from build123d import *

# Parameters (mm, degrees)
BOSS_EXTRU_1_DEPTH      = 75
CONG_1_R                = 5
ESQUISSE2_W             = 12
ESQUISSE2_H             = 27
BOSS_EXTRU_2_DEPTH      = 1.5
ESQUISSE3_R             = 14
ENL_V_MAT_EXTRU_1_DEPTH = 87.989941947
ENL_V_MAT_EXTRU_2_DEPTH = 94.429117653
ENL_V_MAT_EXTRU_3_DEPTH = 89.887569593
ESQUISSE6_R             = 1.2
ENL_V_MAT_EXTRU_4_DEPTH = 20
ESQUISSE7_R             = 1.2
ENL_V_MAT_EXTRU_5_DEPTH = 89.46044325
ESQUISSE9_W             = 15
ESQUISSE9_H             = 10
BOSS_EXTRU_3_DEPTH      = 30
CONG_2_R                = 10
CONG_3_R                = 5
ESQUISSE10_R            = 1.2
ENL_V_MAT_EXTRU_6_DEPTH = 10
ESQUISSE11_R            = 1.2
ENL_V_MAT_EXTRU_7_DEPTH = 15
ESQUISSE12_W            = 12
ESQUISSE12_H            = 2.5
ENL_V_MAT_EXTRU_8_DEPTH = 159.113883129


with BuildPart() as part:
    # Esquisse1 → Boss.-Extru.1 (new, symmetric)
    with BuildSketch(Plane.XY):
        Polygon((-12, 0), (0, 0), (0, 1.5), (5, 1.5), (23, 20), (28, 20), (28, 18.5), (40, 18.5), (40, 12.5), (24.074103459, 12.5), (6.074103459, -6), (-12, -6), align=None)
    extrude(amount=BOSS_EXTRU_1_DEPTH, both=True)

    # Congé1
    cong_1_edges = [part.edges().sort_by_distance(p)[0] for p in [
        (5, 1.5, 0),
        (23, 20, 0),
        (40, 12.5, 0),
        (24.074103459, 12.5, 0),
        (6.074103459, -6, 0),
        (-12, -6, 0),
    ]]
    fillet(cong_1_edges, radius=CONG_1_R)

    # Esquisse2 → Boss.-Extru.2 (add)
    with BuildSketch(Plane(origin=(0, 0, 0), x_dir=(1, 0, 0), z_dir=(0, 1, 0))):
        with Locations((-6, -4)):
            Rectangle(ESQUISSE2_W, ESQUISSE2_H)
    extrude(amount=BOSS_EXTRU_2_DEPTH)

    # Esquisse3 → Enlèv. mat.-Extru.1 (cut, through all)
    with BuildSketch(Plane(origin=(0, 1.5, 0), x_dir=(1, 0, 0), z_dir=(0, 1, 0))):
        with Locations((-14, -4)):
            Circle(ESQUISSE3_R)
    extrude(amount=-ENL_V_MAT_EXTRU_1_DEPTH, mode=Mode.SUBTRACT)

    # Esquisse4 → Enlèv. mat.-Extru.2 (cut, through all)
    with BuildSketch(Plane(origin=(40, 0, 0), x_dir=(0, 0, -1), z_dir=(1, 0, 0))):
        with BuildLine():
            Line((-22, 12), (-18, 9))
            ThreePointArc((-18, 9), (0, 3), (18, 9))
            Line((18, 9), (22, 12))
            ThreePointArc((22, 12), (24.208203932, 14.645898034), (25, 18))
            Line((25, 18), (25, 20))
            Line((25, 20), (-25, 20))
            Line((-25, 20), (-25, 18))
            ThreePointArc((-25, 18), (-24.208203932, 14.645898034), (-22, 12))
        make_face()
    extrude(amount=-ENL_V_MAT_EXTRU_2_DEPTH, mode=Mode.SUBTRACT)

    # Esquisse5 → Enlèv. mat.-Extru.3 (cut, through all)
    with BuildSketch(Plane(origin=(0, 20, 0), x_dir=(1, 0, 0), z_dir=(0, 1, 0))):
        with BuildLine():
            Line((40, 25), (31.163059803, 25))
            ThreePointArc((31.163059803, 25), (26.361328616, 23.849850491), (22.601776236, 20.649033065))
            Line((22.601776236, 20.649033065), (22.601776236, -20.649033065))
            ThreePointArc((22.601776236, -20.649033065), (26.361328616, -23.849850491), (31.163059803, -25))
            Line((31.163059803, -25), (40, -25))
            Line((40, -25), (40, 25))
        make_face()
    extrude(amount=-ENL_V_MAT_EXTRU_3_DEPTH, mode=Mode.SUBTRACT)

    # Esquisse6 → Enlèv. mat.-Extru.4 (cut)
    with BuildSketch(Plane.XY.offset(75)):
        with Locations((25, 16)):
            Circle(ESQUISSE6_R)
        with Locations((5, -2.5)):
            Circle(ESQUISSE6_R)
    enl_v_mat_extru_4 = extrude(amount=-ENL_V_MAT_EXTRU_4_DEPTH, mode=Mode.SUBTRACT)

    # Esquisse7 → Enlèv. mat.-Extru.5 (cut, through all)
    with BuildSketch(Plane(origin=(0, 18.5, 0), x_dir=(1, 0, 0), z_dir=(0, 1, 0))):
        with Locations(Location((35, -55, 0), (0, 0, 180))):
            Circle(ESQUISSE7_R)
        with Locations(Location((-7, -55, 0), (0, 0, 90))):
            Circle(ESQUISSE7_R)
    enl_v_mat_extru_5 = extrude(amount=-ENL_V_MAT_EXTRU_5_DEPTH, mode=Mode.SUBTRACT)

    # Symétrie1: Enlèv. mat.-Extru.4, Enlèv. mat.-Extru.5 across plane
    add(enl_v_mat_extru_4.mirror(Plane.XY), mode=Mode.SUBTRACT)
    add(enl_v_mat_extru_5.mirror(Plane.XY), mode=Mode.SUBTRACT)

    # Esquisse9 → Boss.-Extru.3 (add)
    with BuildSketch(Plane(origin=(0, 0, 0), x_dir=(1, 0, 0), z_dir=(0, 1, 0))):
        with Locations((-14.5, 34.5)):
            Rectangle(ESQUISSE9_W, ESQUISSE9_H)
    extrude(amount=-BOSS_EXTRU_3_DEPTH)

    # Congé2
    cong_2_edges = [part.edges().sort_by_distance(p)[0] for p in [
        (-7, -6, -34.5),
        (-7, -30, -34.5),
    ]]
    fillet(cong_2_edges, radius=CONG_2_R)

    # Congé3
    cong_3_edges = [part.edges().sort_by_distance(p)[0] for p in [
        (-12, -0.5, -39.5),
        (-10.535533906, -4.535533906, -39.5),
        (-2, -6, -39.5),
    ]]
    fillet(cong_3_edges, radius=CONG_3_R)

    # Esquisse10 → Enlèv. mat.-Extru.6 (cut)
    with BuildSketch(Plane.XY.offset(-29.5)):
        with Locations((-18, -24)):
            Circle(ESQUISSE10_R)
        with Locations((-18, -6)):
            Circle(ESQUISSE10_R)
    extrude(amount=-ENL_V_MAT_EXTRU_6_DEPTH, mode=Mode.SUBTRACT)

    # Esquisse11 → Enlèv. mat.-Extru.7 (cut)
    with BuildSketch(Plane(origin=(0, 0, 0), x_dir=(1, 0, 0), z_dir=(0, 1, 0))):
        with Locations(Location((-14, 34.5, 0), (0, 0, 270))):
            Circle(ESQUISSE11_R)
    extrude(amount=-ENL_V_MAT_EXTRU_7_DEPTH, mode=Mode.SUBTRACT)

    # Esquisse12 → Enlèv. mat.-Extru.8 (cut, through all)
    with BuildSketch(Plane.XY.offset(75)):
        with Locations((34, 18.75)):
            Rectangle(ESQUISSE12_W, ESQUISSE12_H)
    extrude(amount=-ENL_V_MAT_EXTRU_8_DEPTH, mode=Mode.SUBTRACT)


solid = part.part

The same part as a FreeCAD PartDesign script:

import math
import FreeCAD as App
import Part
import Sketcher
from FreeCAD import Vector


def edges_at(feature, points):
    """Names of the edges that pass closest to the given points."""
    edges = feature.Shape.Edges
    near = lambda p: min(range(len(edges)), key=lambda i: edges[i].distToShape(Part.Vertex(*p))[0])
    return sorted({f"Edge{near(p) + 1}" for p in points})

doc = App.newDocument("Part")
body = doc.addObject("PartDesign::Body", "Body")

# Sketch on XY plane
sketch1 = doc.addObject("Sketcher::SketchObject", "Sketch")
body.addObject(sketch1)
sketch1.AttachmentSupport = (doc.XY_Plane, [""])
sketch1.MapMode = "FlatFace"
sketch1.addGeometry(Part.LineSegment(Vector(0, 0, 0), Vector(-12, 0, 0)), False)
sketch1.addGeometry(Part.LineSegment(Vector(-12, 0, 0), Vector(-12, -6, 0)), False)
sketch1.addGeometry(Part.LineSegment(Vector(-12, -6, 0), Vector(6.1, -6, 0)), False)
sketch1.addGeometry(Part.LineSegment(Vector(6.1, -6, 0), Vector(24.1, 12.5, 0)), False)
sketch1.addGeometry(Part.LineSegment(Vector(24.1, 12.5, 0), Vector(40, 12.5, 0)), False)
sketch1.addGeometry(Part.LineSegment(Vector(40, 12.5, 0), Vector(40, 18.5, 0)), False)
sketch1.addGeometry(Part.LineSegment(Vector(40, 18.5, 0), Vector(28, 18.5, 0)), False)
sketch1.addGeometry(Part.LineSegment(Vector(28, 18.5, 0), Vector(28, 20, 0)), False)
sketch1.addGeometry(Part.LineSegment(Vector(28, 20, 0), Vector(23, 20, 0)), False)
sketch1.addGeometry(Part.LineSegment(Vector(23, 20, 0), Vector(5, 1.5, 0)), False)
sketch1.addGeometry(Part.LineSegment(Vector(5, 1.5, 0), Vector(0, 1.5, 0)), False)
sketch1.addGeometry(Part.LineSegment(Vector(0, 1.5, 0), Vector(0, 0, 0)), False)
sketch1.addConstraint(Sketcher.Constraint("Coincident", 0, 2, 1, 1))
sketch1.addConstraint(Sketcher.Constraint("Coincident", 1, 2, 2, 1))
sketch1.addConstraint(Sketcher.Constraint("Coincident", 2, 2, 3, 1))
sketch1.addConstraint(Sketcher.Constraint("Coincident", 3, 2, 4, 1))
sketch1.addConstraint(Sketcher.Constraint("Coincident", 4, 2, 5, 1))
sketch1.addConstraint(Sketcher.Constraint("Coincident", 5, 2, 6, 1))
sketch1.addConstraint(Sketcher.Constraint("Coincident", 6, 2, 7, 1))
sketch1.addConstraint(Sketcher.Constraint("Coincident", 7, 2, 8, 1))
sketch1.addConstraint(Sketcher.Constraint("Coincident", 8, 2, 9, 1))
sketch1.addConstraint(Sketcher.Constraint("Coincident", 9, 2, 10, 1))
sketch1.addConstraint(Sketcher.Constraint("Coincident", 10, 2, 11, 1))
sketch1.addConstraint(Sketcher.Constraint("Coincident", 11, 2, 0, 1))
sketch1.addConstraint(Sketcher.Constraint("Horizontal", 0))
sketch1.addConstraint(Sketcher.Constraint("Vertical", 1))
sketch1.addConstraint(Sketcher.Constraint("Horizontal", 2))
sketch1.addConstraint(Sketcher.Constraint("Horizontal", 4))
sketch1.addConstraint(Sketcher.Constraint("Vertical", 5))
sketch1.addConstraint(Sketcher.Constraint("Horizontal", 6))
sketch1.addConstraint(Sketcher.Constraint("Vertical", 7))
sketch1.addConstraint(Sketcher.Constraint("Horizontal", 8))
sketch1.addConstraint(Sketcher.Constraint("Horizontal", 10))
sketch1.addConstraint(Sketcher.Constraint("Vertical", 11))
sketch1.addConstraint(Sketcher.Constraint("Coincident", 11, 2, -1, 1))
sketch1.addConstraint(Sketcher.Constraint("Parallel", 3, 9))
sketch1.addConstraint(Sketcher.Constraint("Equal", 0, 6))
sketch1.addConstraint(Sketcher.Constraint("Equal", 8, 10))
sketch1.addConstraint(Sketcher.Constraint("Equal", 1, 5))
sketch1.addConstraint(Sketcher.Constraint("Equal", 7, 11))
sketch1.addConstraint(Sketcher.Constraint("DistanceX", 0, 2, 0, 1, 12.0))
sketch1.addConstraint(Sketcher.Constraint("DistanceX", 8, 2, 8, 1, 5.0))
sketch1.addConstraint(Sketcher.Constraint("DistanceY", 1, 2, 1, 1, 6.0))
sketch1.addConstraint(Sketcher.Constraint("DistanceY", 7, 1, 7, 2, 1.5))
sketch1.addConstraint(Sketcher.Constraint("DistanceX", -1, 1, 4, 2, 40.0))
sketch1.addConstraint(Sketcher.Constraint("DistanceY", -1, 1, 7, 2, 20.0))
sketch1.addConstraint(Sketcher.Constraint("DistanceX", 2, 1, 2, 2, 18.074103))
pad1 = doc.addObject("PartDesign::Pad", "Pad")
body.addObject(pad1)
pad1.Profile = sketch1
pad1.Length = 150
pad1.Midplane = True
doc.recompute()

fillet = doc.addObject("PartDesign::Fillet", "Fillet")
body.addObject(fillet)
fillet.Base = (pad1, edges_at(pad1, [
    (5, 1.5, 0),
    (23, 20, 0),
    (40, 12.5, 0),
    (24.074, 12.5, 0),
    (6.074, -6, 0),
    (-12, -6, 0),
]))
fillet.Radius = 5

# Sketch on XZ plane
sketch2 = doc.addObject("Sketcher::SketchObject", "Sketch001")
body.addObject(sketch2)
sketch2.AttachmentSupport = (doc.XZ_Plane, [""])
sketch2.MapMode = "FlatFace"
sketch2.addGeometry(Part.LineSegment(Vector(-12, -10, 0), Vector(-12, 18, 0)), False)
sketch2.addGeometry(Part.LineSegment(Vector(-12, 18, 0), Vector(0, 18, 0)), False)
sketch2.addGeometry(Part.LineSegment(Vector(0, 18, 0), Vector(0, -10, 0)), False)
sketch2.addGeometry(Part.LineSegment(Vector(0, -10, 0), Vector(-12, -10, 0)), False)
sketch2.addConstraint(Sketcher.Constraint("Coincident", 0, 2, 1, 1))
sketch2.addConstraint(Sketcher.Constraint("Coincident", 1, 2, 2, 1))
sketch2.addConstraint(Sketcher.Constraint("Coincident", 2, 2, 3, 1))
sketch2.addConstraint(Sketcher.Constraint("Coincident", 3, 2, 0, 1))
sketch2.addConstraint(Sketcher.Constraint("Vertical", 0))
sketch2.addConstraint(Sketcher.Constraint("Horizontal", 1))
sketch2.addConstraint(Sketcher.Constraint("Vertical", 2))
sketch2.addConstraint(Sketcher.Constraint("Horizontal", 3))
sketch2.addConstraint(Sketcher.Constraint("PointOnObject", 1, 2, -2))
sketch2.addConstraint(Sketcher.Constraint("DistanceX", 1, 1, 1, 2, 12.0))
sketch2.addConstraint(Sketcher.Constraint("DistanceY", 0, 1, 0, 2, 27.0))
sketch2.addConstraint(Sketcher.Constraint("DistanceY", -1, 1, 0, 2, 17.5))
pad2 = doc.addObject("PartDesign::Pad", "Pad001")
body.addObject(pad2)
pad2.Profile = sketch2
pad2.Length = 1.5
pad2.Reversed = True

# Sketch on XZ plane
sketch3 = doc.addObject("Sketcher::SketchObject", "Sketch002")
body.addObject(sketch3)
sketch3.AttachmentSupport = (doc.XZ_Plane, [""])
sketch3.MapMode = "FlatFace"
sketch3.AttachmentOffset = App.Placement(Vector(0, 0, -1.5), App.Rotation())
sketch3.addGeometry(Part.Circle(Vector(-14, 4, 0), Vector(0, 0, 1), 14), False)
sketch3.addConstraint(Sketcher.Constraint("Diameter", 0, 28.0))
sketch3.addConstraint(Sketcher.Constraint("DistanceX", 0, 3, -1, 1, 14.0))
sketch3.addConstraint(Sketcher.Constraint("DistanceY", -1, 1, 0, 3, 4.0))
pocket1 = doc.addObject("PartDesign::Pocket", "Pocket")
body.addObject(pocket1)
pocket1.Profile = sketch3
pocket1.Type = "ThroughAll"
pocket1.Reversed = True

# Sketch on YZ plane
sketch4 = doc.addObject("Sketcher::SketchObject", "Sketch003")
body.addObject(sketch4)
sketch4.AttachmentSupport = (doc.YZ_Plane, [""])
sketch4.MapMode = "FlatFace"
sketch4.AttachmentOffset = App.Placement(Vector(0, 0, 40), App.Rotation())
sketch4.addGeometry(Part.LineSegment(Vector(12, 22, 0), Vector(9, 18, 0)), False)
sketch4.addGeometry(Part.ArcOfCircle(Part.Circle(Vector(33, 0, 0), Vector(0, 0, 1), 30), math.radians(143), math.radians(217)), False)
sketch4.addGeometry(Part.LineSegment(Vector(9, -18, 0), Vector(12, -22, 0)), False)
sketch4.addGeometry(Part.ArcOfCircle(Part.Circle(Vector(18, -17.5, 0), Vector(0, 0, 1), 7.5), math.radians(-143), math.radians(-90)), False)
sketch4.addGeometry(Part.LineSegment(Vector(18, -25, 0), Vector(20, -25, 0)), False)
sketch4.addGeometry(Part.LineSegment(Vector(20, -25, 0), Vector(20, 25, 0)), False)
sketch4.addGeometry(Part.LineSegment(Vector(20, 25, 0), Vector(18, 25, 0)), False)
sketch4.addGeometry(Part.ArcOfCircle(Part.Circle(Vector(18, 17.5, 0), Vector(0, 0, 1), 7.5), math.radians(90), math.radians(143)), False)
sketch4.addConstraint(Sketcher.Constraint("Tangent", 0, 2, 1, 1))
sketch4.addConstraint(Sketcher.Constraint("Tangent", 1, 2, 2, 1))
sketch4.addConstraint(Sketcher.Constraint("Tangent", 2, 2, 3, 1))
sketch4.addConstraint(Sketcher.Constraint("Tangent", 3, 2, 4, 1))
sketch4.addConstraint(Sketcher.Constraint("Coincident", 4, 2, 5, 1))
sketch4.addConstraint(Sketcher.Constraint("Coincident", 5, 2, 6, 1))
sketch4.addConstraint(Sketcher.Constraint("Tangent", 6, 2, 7, 1))
sketch4.addConstraint(Sketcher.Constraint("Tangent", 7, 2, 0, 1))
sketch4.addConstraint(Sketcher.Constraint("Horizontal", 4))
sketch4.addConstraint(Sketcher.Constraint("Vertical", 5))
sketch4.addConstraint(Sketcher.Constraint("Horizontal", 6))
sketch4.addConstraint(Sketcher.Constraint("Equal", 3, 7))
sketch4.addConstraint(Sketcher.Constraint("Symmetric", 3, 3, 7, 3, -1))
sketch4.addConstraint(Sketcher.Constraint("PointOnObject", 1, 3, -1))
sketch4.addConstraint(Sketcher.Constraint("Radius", 1, 30.0))
sketch4.addConstraint(Sketcher.Constraint("Radius", 3, 7.5))
sketch4.addConstraint(Sketcher.Constraint("DistanceX", 4, 1, 4, 2, 2.0))
sketch4.addConstraint(Sketcher.Constraint("DistanceY", 5, 1, 5, 2, 50.0))
sketch4.addConstraint(Sketcher.Constraint("Distance", 0, 5.0))
sketch4.addConstraint(Sketcher.Constraint("DistanceX", -1, 1, 1, 3, 33.0))
pocket2 = doc.addObject("PartDesign::Pocket", "Pocket001")
body.addObject(pocket2)
pocket2.Profile = sketch4
pocket2.Type = "ThroughAll"

# Sketch on XZ plane
sketch5 = doc.addObject("Sketcher::SketchObject", "Sketch004")
body.addObject(sketch5)
sketch5.AttachmentSupport = (doc.XZ_Plane, [""])
sketch5.MapMode = "FlatFace"
sketch5.AttachmentOffset = App.Placement(Vector(0, 0, -20), App.Rotation())
sketch5.addGeometry(Part.LineSegment(Vector(40, -25, 0), Vector(31, -25, 0)), False)
sketch5.addGeometry(Part.ArcOfCircle(Part.Circle(Vector(31, -14, 0), Vector(0, 0, 1), 11), math.radians(-144), math.radians(-90)), False)
sketch5.addGeometry(Part.LineSegment(Vector(23, -21, 0), Vector(23, 21, 0)), False)
sketch5.addGeometry(Part.ArcOfCircle(Part.Circle(Vector(31, 14, 0), Vector(0, 0, 1), 11), math.radians(90), math.radians(144)), False)
sketch5.addGeometry(Part.LineSegment(Vector(31, 25, 0), Vector(40, 25, 0)), False)
sketch5.addGeometry(Part.LineSegment(Vector(40, 25, 0), Vector(40, -25, 0)), False)
sketch5.addConstraint(Sketcher.Constraint("Tangent", 0, 2, 1, 2))
sketch5.addConstraint(Sketcher.Constraint("Coincident", 1, 1, 2, 1))
sketch5.addConstraint(Sketcher.Constraint("Coincident", 2, 2, 3, 2))
sketch5.addConstraint(Sketcher.Constraint("Tangent", 3, 1, 4, 1))
sketch5.addConstraint(Sketcher.Constraint("Coincident", 4, 2, 5, 1))
sketch5.addConstraint(Sketcher.Constraint("Coincident", 5, 2, 0, 1))
sketch5.addConstraint(Sketcher.Constraint("Horizontal", 0))
sketch5.addConstraint(Sketcher.Constraint("Vertical", 2))
sketch5.addConstraint(Sketcher.Constraint("Horizontal", 4))
sketch5.addConstraint(Sketcher.Constraint("Vertical", 5))
sketch5.addConstraint(Sketcher.Constraint("Equal", 1, 3))
sketch5.addConstraint(Sketcher.Constraint("Symmetric", 1, 3, 3, 3, -1))
sketch5.addConstraint(Sketcher.Constraint("DistanceY", 5, 2, 5, 1, 50.0))
sketch5.addConstraint(Sketcher.Constraint("DistanceX", -1, 1, 4, 2, 40.0))
sketch5.addConstraint(Sketcher.Constraint("Radius", 1, 10.59839))
sketch5.addConstraint(Sketcher.Constraint("DistanceX", 0, 2, 0, 1, 8.83694))
sketch5.addConstraint(Sketcher.Constraint("DistanceY", 2, 1, 2, 2, 41.298066))
pocket3 = doc.addObject("PartDesign::Pocket", "Pocket002")
body.addObject(pocket3)
pocket3.Profile = sketch5
pocket3.Type = "ThroughAll"
pocket3.Reversed = True

# Sketch on XY plane
sketch6 = doc.addObject("Sketcher::SketchObject", "Sketch005")
body.addObject(sketch6)
sketch6.AttachmentSupport = (doc.XY_Plane, [""])
sketch6.MapMode = "FlatFace"
sketch6.AttachmentOffset = App.Placement(Vector(0, 0, 75), App.Rotation())
sketch6.addGeometry(Part.Circle(Vector(25, 16, 0), Vector(0, 0, 1), 1.2), False)
sketch6.addGeometry(Part.Circle(Vector(5, -2.5, 0), Vector(0, 0, 1), 1.2), False)
sketch6.addConstraint(Sketcher.Constraint("Equal", 0, 1))
sketch6.addConstraint(Sketcher.Constraint("Diameter", 0, 2.4))
sketch6.addConstraint(Sketcher.Constraint("DistanceX", -1, 1, 0, 3, 25.0))
sketch6.addConstraint(Sketcher.Constraint("DistanceY", -1, 1, 0, 3, 16.0))
sketch6.addConstraint(Sketcher.Constraint("DistanceX", -1, 1, 1, 3, 5.0))
sketch6.addConstraint(Sketcher.Constraint("DistanceY", 1, 3, -1, 1, 2.5))
pocket4 = doc.addObject("PartDesign::Pocket", "Pocket003")
body.addObject(pocket4)
pocket4.Profile = sketch6
pocket4.Length = 20

# Sketch on XZ plane
sketch7 = doc.addObject("Sketcher::SketchObject", "Sketch006")
body.addObject(sketch7)
sketch7.AttachmentSupport = (doc.XZ_Plane, [""])
sketch7.MapMode = "FlatFace"
sketch7.AttachmentOffset = App.Placement(Vector(0, 0, -18.5), App.Rotation())
sketch7.addGeometry(Part.Circle(Vector(35, 55, 0), Vector(0, 0, 1), 1.2), False)
sketch7.addGeometry(Part.Circle(Vector(-7, 55, 0), Vector(0, 0, 1), 1.2), False)
sketch7.addConstraint(Sketcher.Constraint("Equal", 0, 1))
sketch7.addConstraint(Sketcher.Constraint("Horizontal", 0, 3, 1, 3))
sketch7.addConstraint(Sketcher.Constraint("Diameter", 0, 2.4))
sketch7.addConstraint(Sketcher.Constraint("DistanceX", -1, 1, 0, 3, 35.0))
sketch7.addConstraint(Sketcher.Constraint("DistanceY", -1, 1, 0, 3, 55.0))
sketch7.addConstraint(Sketcher.Constraint("DistanceX", 1, 3, -1, 1, 7.0))
pocket5 = doc.addObject("PartDesign::Pocket", "Pocket004")
body.addObject(pocket5)
pocket5.Profile = sketch7
pocket5.Type = "ThroughAll"
pocket5.Reversed = True
doc.recompute()

mirrored = doc.addObject("PartDesign::Mirrored", "Mirrored")
body.addObject(mirrored)
mirrored.Originals = [pocket4, pocket5]
mirrored.MirrorPlane = (doc.XY_Plane, [""])
body.Tip = mirrored

# Sketch on XZ plane
sketch8 = doc.addObject("Sketcher::SketchObject", "Sketch007")
body.addObject(sketch8)
sketch8.AttachmentSupport = (doc.XZ_Plane, [""])
sketch8.MapMode = "FlatFace"
sketch8.addGeometry(Part.LineSegment(Vector(-22, -40, 0), Vector(-22, -30, 0)), False)
sketch8.addGeometry(Part.LineSegment(Vector(-22, -30, 0), Vector(-7, -30, 0)), False)
sketch8.addGeometry(Part.LineSegment(Vector(-7, -30, 0), Vector(-7, -40, 0)), False)
sketch8.addGeometry(Part.LineSegment(Vector(-7, -40, 0), Vector(-22, -40, 0)), False)
sketch8.addConstraint(Sketcher.Constraint("Coincident", 0, 2, 1, 1))
sketch8.addConstraint(Sketcher.Constraint("Coincident", 1, 2, 2, 1))
sketch8.addConstraint(Sketcher.Constraint("Coincident", 2, 2, 3, 1))
sketch8.addConstraint(Sketcher.Constraint("Coincident", 3, 2, 0, 1))
sketch8.addConstraint(Sketcher.Constraint("Vertical", 0))
sketch8.addConstraint(Sketcher.Constraint("Horizontal", 1))
sketch8.addConstraint(Sketcher.Constraint("Vertical", 2))
sketch8.addConstraint(Sketcher.Constraint("Horizontal", 3))
sketch8.addConstraint(Sketcher.Constraint("DistanceX", 1, 1, 1, 2, 15.0))
sketch8.addConstraint(Sketcher.Constraint("DistanceY", 0, 1, 0, 2, 10.0))
sketch8.addConstraint(Sketcher.Constraint("DistanceX", 0, 2, -1, 1, 22.0))
sketch8.addConstraint(Sketcher.Constraint("DistanceY", 0, 2, -1, 1, 29.5))
pad3 = doc.addObject("PartDesign::Pad", "Pad002")
body.addObject(pad3)
pad3.Profile = sketch8
pad3.Length = 30
doc.recompute()

fillet2 = doc.addObject("PartDesign::Fillet", "Fillet001")
body.addObject(fillet2)
fillet2.Base = (pad3, edges_at(pad3, [(-7, -6, -34.5), (-7, -30, -34.5)]))
fillet2.Radius = 10
doc.recompute()

fillet3 = doc.addObject("PartDesign::Fillet", "Fillet002")
body.addObject(fillet3)
fillet3.Base = (fillet2, edges_at(fillet2, [(-12, -0.5, -39.5), (-10.536, -4.536, -39.5), (-2, -6, -39.5)]))
fillet3.Radius = 5

# Sketch on XY plane
sketch9 = doc.addObject("Sketcher::SketchObject", "Sketch008")
body.addObject(sketch9)
sketch9.AttachmentSupport = (doc.XY_Plane, [""])
sketch9.MapMode = "FlatFace"
sketch9.AttachmentOffset = App.Placement(Vector(0, 0, -29.5), App.Rotation())
sketch9.addGeometry(Part.Circle(Vector(-18, -24, 0), Vector(0, 0, 1), 1.2), False)
sketch9.addGeometry(Part.Circle(Vector(-18, -6, 0), Vector(0, 0, 1), 1.2), False)
sketch9.addConstraint(Sketcher.Constraint("Equal", 0, 1))
sketch9.addConstraint(Sketcher.Constraint("Vertical", 0, 3, 1, 3))
sketch9.addConstraint(Sketcher.Constraint("Diameter", 0, 2.4))
sketch9.addConstraint(Sketcher.Constraint("DistanceX", 0, 3, -1, 1, 18.0))
sketch9.addConstraint(Sketcher.Constraint("DistanceY", 0, 3, -1, 1, 24.0))
sketch9.addConstraint(Sketcher.Constraint("DistanceY", 1, 3, -1, 1, 6.0))
pocket6 = doc.addObject("PartDesign::Pocket", "Pocket005")
body.addObject(pocket6)
pocket6.Profile = sketch9
pocket6.Length = 10

# Sketch on XZ plane
sketch10 = doc.addObject("Sketcher::SketchObject", "Sketch009")
body.addObject(sketch10)
sketch10.AttachmentSupport = (doc.XZ_Plane, [""])
sketch10.MapMode = "FlatFace"
sketch10.addGeometry(Part.Circle(Vector(-14, -34.5, 0), Vector(0, 0, 1), 1.2), False)
sketch10.addConstraint(Sketcher.Constraint("Diameter", 0, 2.4))
sketch10.addConstraint(Sketcher.Constraint("DistanceX", 0, 3, -1, 1, 14.0))
sketch10.addConstraint(Sketcher.Constraint("DistanceY", 0, 3, -1, 1, 34.5))
pocket7 = doc.addObject("PartDesign::Pocket", "Pocket006")
body.addObject(pocket7)
pocket7.Profile = sketch10
pocket7.Length = 15
pocket7.Reversed = True

# Sketch on XY plane
sketch11 = doc.addObject("Sketcher::SketchObject", "Sketch010")
body.addObject(sketch11)
sketch11.AttachmentSupport = (doc.XY_Plane, [""])
sketch11.MapMode = "FlatFace"
sketch11.AttachmentOffset = App.Placement(Vector(0, 0, 75), App.Rotation())
sketch11.addGeometry(Part.LineSegment(Vector(28, 20, 0), Vector(28, 17.5, 0)), False)
sketch11.addGeometry(Part.LineSegment(Vector(28, 17.5, 0), Vector(40, 17.5, 0)), False)
sketch11.addGeometry(Part.LineSegment(Vector(40, 17.5, 0), Vector(40, 20, 0)), False)
sketch11.addGeometry(Part.LineSegment(Vector(40, 20, 0), Vector(28, 20, 0)), False)
sketch11.addConstraint(Sketcher.Constraint("Coincident", 0, 2, 1, 1))
sketch11.addConstraint(Sketcher.Constraint("Coincident", 1, 2, 2, 1))
sketch11.addConstraint(Sketcher.Constraint("Coincident", 2, 2, 3, 1))
sketch11.addConstraint(Sketcher.Constraint("Coincident", 3, 2, 0, 1))
sketch11.addConstraint(Sketcher.Constraint("Vertical", 0))
sketch11.addConstraint(Sketcher.Constraint("Horizontal", 1))
sketch11.addConstraint(Sketcher.Constraint("Vertical", 2))
sketch11.addConstraint(Sketcher.Constraint("Horizontal", 3))
sketch11.addConstraint(Sketcher.Constraint("DistanceX", 1, 1, 1, 2, 12.0))
sketch11.addConstraint(Sketcher.Constraint("DistanceY", 0, 2, 0, 1, 2.5))
sketch11.addConstraint(Sketcher.Constraint("DistanceX", -1, 1, 0, 2, 28.0))
sketch11.addConstraint(Sketcher.Constraint("DistanceY", -1, 1, 2, 2, 20.0))
pocket8 = doc.addObject("PartDesign::Pocket", "Pocket007")
body.addObject(pocket8)
pocket8.Profile = sketch11
pocket8.Type = "ThroughAll"

doc.recompute()
